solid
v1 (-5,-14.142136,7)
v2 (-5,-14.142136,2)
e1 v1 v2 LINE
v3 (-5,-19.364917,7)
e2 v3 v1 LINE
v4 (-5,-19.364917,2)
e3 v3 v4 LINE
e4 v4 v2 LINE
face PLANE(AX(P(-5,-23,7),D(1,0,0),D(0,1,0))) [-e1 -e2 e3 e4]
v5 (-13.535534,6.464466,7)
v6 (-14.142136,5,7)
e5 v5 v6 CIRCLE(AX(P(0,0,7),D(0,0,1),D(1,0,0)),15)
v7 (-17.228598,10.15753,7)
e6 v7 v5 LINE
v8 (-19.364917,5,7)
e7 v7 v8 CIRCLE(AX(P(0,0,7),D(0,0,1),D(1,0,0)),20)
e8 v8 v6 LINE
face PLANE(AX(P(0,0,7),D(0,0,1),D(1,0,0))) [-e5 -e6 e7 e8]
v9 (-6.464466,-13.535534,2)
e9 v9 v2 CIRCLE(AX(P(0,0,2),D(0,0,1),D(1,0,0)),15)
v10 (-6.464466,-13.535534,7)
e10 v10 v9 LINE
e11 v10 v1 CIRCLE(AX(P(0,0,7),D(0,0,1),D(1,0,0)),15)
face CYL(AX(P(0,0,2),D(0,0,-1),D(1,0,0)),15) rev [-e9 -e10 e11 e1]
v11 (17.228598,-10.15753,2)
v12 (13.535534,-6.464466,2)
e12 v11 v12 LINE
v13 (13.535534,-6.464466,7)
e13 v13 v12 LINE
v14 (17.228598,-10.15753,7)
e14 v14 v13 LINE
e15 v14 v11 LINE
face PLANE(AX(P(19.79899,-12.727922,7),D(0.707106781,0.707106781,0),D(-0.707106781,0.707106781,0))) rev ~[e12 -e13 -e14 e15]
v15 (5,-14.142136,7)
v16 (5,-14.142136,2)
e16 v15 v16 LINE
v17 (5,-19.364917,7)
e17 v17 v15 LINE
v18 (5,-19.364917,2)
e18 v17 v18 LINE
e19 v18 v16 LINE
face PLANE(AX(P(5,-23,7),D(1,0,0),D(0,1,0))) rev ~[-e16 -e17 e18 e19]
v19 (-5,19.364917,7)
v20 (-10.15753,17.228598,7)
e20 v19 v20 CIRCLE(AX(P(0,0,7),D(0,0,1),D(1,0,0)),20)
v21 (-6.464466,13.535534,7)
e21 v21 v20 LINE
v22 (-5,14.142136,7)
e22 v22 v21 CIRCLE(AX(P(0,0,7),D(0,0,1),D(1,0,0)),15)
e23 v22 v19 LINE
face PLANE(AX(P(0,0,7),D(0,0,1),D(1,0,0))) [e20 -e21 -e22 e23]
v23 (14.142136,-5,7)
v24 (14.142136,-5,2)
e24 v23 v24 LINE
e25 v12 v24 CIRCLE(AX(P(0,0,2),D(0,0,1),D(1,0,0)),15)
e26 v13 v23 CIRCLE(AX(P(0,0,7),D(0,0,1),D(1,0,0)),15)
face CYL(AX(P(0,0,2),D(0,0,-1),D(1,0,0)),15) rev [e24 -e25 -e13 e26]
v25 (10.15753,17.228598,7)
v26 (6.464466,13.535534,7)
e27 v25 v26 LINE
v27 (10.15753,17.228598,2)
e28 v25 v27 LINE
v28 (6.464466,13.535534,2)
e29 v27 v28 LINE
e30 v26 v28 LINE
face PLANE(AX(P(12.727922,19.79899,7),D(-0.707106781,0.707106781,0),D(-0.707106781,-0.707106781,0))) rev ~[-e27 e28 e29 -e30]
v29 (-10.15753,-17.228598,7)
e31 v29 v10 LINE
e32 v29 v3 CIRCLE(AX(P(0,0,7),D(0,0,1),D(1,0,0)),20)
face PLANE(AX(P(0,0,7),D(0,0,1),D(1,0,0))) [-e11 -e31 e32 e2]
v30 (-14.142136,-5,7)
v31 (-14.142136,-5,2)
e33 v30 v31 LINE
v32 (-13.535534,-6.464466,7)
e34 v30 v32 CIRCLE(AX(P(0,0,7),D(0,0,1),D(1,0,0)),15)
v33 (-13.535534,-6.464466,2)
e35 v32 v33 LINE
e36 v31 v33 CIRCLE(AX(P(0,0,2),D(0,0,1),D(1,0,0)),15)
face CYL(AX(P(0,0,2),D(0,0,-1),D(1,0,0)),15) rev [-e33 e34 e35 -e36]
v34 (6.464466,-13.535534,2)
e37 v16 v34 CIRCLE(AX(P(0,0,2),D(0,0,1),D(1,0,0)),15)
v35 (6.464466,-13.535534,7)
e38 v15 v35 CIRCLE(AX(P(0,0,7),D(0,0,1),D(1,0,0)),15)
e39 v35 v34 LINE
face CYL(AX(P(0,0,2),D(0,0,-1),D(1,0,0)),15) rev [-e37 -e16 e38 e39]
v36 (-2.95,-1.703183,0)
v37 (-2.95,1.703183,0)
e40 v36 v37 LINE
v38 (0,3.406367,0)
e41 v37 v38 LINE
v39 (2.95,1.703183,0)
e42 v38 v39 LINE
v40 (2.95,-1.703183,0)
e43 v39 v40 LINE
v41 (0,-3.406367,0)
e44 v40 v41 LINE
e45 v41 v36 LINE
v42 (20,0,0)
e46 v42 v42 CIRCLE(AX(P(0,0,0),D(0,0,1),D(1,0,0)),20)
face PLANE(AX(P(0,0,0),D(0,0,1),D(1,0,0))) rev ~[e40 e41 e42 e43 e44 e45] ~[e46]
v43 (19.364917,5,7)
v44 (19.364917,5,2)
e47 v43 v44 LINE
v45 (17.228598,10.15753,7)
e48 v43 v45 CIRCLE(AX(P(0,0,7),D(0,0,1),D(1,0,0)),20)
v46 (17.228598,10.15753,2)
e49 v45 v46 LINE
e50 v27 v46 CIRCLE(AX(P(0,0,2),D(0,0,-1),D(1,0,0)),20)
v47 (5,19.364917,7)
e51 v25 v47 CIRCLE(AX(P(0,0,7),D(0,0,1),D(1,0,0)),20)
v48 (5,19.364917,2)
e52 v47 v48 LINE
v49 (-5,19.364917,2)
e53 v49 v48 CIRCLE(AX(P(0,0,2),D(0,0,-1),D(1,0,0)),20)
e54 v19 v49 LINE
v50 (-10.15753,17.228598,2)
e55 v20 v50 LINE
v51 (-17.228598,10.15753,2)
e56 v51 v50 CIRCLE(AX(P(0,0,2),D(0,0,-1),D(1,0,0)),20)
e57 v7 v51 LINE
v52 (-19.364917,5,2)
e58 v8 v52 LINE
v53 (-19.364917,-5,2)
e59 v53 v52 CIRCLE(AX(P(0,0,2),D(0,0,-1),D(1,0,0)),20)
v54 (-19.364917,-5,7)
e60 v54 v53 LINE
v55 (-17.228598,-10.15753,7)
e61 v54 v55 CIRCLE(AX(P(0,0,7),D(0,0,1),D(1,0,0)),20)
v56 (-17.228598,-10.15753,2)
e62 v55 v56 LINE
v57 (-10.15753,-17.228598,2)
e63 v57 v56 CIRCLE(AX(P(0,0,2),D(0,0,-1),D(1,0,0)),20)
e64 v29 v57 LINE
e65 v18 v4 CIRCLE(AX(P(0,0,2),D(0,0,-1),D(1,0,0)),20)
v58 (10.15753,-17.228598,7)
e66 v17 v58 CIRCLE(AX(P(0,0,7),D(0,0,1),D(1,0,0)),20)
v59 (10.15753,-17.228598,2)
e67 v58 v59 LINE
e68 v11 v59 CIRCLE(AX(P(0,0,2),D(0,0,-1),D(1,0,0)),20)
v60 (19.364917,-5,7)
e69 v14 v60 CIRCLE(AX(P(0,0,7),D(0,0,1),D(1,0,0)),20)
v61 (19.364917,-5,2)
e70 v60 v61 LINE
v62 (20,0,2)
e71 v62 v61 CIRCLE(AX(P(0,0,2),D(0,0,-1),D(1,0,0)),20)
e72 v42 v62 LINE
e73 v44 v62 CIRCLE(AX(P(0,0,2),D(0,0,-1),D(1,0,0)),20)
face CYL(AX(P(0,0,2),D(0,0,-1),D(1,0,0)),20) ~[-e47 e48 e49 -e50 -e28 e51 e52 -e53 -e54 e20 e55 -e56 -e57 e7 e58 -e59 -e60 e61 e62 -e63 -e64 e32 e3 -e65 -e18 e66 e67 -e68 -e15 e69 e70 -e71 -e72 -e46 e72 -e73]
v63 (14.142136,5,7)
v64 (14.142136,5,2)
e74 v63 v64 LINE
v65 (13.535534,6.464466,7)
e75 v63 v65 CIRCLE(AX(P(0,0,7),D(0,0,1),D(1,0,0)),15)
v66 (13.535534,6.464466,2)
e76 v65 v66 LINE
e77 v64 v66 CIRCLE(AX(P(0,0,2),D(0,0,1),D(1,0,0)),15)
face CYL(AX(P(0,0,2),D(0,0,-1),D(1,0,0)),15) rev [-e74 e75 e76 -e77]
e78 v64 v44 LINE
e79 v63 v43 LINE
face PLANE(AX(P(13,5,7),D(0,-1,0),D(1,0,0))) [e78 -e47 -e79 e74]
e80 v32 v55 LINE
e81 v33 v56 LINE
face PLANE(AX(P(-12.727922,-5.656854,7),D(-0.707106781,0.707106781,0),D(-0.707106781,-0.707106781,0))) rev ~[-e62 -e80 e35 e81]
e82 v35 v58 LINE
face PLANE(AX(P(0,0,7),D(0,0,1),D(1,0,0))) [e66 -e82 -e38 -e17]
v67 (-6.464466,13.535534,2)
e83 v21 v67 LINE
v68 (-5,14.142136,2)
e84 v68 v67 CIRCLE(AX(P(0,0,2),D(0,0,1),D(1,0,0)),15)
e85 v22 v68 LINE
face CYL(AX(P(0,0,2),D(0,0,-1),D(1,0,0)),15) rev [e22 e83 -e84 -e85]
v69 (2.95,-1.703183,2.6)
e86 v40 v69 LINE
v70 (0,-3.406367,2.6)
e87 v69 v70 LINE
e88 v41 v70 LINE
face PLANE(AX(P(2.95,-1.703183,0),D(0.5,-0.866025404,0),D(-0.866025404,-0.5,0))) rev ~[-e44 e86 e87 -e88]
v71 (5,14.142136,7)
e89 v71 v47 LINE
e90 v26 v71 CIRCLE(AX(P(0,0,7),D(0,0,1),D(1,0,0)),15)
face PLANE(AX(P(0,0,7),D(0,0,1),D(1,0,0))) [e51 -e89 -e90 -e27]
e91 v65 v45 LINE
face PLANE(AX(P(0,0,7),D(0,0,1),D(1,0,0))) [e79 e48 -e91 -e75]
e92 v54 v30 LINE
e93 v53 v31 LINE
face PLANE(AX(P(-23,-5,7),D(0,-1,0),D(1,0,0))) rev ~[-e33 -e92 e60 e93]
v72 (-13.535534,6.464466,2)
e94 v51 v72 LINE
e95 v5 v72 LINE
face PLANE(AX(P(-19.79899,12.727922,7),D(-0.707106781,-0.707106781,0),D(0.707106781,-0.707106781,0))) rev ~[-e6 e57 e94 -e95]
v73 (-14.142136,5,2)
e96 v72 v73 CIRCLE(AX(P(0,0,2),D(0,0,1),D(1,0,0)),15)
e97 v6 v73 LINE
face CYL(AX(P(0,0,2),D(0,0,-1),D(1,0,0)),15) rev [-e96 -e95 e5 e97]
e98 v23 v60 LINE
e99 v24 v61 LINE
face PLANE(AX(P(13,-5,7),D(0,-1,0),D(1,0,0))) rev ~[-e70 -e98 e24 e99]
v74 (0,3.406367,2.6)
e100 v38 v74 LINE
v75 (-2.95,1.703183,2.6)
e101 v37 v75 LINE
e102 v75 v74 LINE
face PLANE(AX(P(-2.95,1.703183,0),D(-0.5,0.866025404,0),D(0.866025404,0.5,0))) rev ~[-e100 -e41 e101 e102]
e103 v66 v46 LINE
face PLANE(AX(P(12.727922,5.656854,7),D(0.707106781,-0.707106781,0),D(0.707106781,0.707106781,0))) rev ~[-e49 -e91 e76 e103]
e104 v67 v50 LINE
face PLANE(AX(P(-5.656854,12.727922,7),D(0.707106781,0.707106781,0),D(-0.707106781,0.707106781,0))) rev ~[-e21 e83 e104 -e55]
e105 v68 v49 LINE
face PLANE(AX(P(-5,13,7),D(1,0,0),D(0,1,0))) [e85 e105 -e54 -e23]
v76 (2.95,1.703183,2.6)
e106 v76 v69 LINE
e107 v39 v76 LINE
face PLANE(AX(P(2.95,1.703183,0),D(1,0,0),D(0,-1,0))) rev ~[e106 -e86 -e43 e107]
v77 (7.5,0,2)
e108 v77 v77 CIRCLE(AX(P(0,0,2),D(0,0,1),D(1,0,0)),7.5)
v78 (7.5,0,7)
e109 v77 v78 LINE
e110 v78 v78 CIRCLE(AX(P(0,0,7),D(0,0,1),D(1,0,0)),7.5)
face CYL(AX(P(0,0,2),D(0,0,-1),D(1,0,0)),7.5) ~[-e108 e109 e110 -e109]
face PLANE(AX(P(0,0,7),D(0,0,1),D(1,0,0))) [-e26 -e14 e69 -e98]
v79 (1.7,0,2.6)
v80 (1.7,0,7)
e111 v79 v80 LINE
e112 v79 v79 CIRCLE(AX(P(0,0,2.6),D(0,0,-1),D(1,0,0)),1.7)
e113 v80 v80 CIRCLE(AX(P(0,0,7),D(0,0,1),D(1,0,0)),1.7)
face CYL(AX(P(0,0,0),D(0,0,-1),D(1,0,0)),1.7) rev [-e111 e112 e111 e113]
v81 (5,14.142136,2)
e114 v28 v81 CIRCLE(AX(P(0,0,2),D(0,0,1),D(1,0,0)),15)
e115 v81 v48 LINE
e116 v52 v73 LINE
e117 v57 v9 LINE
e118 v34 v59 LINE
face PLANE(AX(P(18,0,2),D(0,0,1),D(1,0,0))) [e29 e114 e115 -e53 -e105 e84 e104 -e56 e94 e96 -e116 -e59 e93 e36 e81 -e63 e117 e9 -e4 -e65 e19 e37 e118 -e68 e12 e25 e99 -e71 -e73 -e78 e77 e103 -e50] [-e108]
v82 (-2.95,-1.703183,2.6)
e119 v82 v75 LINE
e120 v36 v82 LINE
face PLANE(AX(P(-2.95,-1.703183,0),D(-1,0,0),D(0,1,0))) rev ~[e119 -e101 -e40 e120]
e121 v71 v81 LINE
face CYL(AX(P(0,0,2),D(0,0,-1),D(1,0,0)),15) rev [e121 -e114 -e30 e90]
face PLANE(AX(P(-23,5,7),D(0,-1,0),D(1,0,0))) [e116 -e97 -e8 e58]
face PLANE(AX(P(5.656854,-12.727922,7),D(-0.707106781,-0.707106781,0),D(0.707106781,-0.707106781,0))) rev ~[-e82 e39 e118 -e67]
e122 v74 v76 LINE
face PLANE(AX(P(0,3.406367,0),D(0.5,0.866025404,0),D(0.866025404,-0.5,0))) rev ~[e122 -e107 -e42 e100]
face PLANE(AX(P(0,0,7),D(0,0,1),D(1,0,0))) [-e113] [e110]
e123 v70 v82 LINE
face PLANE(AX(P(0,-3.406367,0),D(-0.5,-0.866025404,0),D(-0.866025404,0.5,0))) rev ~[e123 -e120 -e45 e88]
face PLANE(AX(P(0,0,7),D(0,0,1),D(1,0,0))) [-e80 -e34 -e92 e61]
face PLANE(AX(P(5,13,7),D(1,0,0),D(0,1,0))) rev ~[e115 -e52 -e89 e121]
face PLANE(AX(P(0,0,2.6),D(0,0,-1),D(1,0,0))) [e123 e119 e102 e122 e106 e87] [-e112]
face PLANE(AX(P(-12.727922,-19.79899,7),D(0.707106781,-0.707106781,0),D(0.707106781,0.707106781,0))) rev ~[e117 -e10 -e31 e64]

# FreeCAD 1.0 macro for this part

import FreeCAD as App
import Part
import Sketcher
from FreeCAD import Vector
Q = App.Units.Quantity

doc = App.newDocument("Part")
body = doc.addObject("PartDesign::Body", "Body")

sketch1 = body.newObject("Sketcher::SketchObject", "Sketch")
sketch1.AttachmentSupport = (doc.getObject("XY_Plane"), [""])
sketch1.MapMode = "FlatFace"
sketch1.addGeometry([
    Part.Circle(Vector(0, 0, 0), Vector(0, 0, 1), 20),
    Part.Circle(Vector(0, 0, 0), Vector(0, 0, 1), 1.7),
], False)
sketch1.addConstraint([
    Sketcher.Constraint("Coincident", 0, 3, -1, 1),
    Sketcher.Constraint("Coincident", 1, 3, -1, 1),
    Sketcher.Constraint("Diameter", 0, Q("40 mm")),
    Sketcher.Constraint("Diameter", 1, Q("3.4 mm")),
])
pad1 = body.newObject("PartDesign::Pad", "Pad")
pad1.Profile = sketch1
pad1.Length = 2

sketch2 = body.newObject("Sketcher::SketchObject", "Sketch001")
sketch2.AttachmentSupport = (doc.getObject("XY_Plane"), [""])
sketch2.MapMode = "FlatFace"
sketch2.AttachmentOffset = App.Placement(Vector(0, 0, 2), App.Rotation())
sketch2.addGeometry([
    Part.Circle(Vector(0, 0, 0), Vector(0, 0, 1), 20),
    Part.Circle(Vector(0, 0, 0), Vector(0, 0, 1), 15),
    Part.Circle(Vector(0, 0, 0), Vector(0, 0, 1), 7.5),
    Part.Circle(Vector(0, 0, 0), Vector(0, 0, 1), 1.7),
], False)
sketch2.addConstraint([
    Sketcher.Constraint("Coincident", 0, 3, -1, 1),
    Sketcher.Constraint("Coincident", 1, 3, -1, 1),
    Sketcher.Constraint("Coincident", 2, 3, -1, 1),
    Sketcher.Constraint("Coincident", 3, 3, -1, 1),
    Sketcher.Constraint("Diameter", 0, Q("40 mm")),
    Sketcher.Constraint("Diameter", 1, Q("30 mm")),
    Sketcher.Constraint("Diameter", 2, Q("15 mm")),
    Sketcher.Constraint("Diameter", 3, Q("3.4 mm")),
])
pad2 = body.newObject("PartDesign::Pad", "Pad001")
pad2.Profile = sketch2
pad2.Length = 5

sketch3 = body.newObject("Sketcher::SketchObject", "Sketch002")
sketch3.AttachmentSupport = (doc.getObject("XY_Plane"), [""])
sketch3.MapMode = "FlatFace"
sketch3.AttachmentOffset = App.Placement(Vector(0, 0, 7), App.Rotation())
sketch3.addGeometry([
    Part.LineSegment(Vector(-23, 5, 0), Vector(-23, -5, 0)),
    Part.LineSegment(Vector(-23, -5, 0), Vector(-13, -5, 0)),
    Part.LineSegment(Vector(-13, -5, 0), Vector(-13, 5, 0)),
    Part.LineSegment(Vector(-13, 5, 0), Vector(-23, 5, 0)),
    Part.LineSegment(Vector(-13, -6, 0), Vector(-20, -13, 0)),
    Part.LineSegment(Vector(-20, -13, 0), Vector(-13, -20, 0)),
    Part.LineSegment(Vector(-13, -20, 0), Vector(-6, -13, 0)),
    Part.LineSegment(Vector(-6, -13, 0), Vector(-13, -6, 0)),
    Part.LineSegment(Vector(-5, -13, 0), Vector(-5, -23, 0)),
    Part.LineSegment(Vector(-5, -23, 0), Vector(5, -23, 0)),
    Part.LineSegment(Vector(5, -23, 0), Vector(5, -13, 0)),
    Part.LineSegment(Vector(5, -13, 0), Vector(-5, -13, 0)),
    Part.LineSegment(Vector(6, -13, 0), Vector(13, -20, 0)),
    Part.LineSegment(Vector(13, -20, 0), Vector(20, -13, 0)),
    Part.LineSegment(Vector(20, -13, 0), Vector(13, -6, 0)),
    Part.LineSegment(Vector(13, -6, 0), Vector(6, -13, 0)),
    Part.LineSegment(Vector(13, 5, 0), Vector(13, -5, 0)),
    Part.LineSegment(Vector(13, -5, 0), Vector(23, -5, 0)),
    Part.LineSegment(Vector(23, -5, 0), Vector(23, 5, 0)),
    Part.LineSegment(Vector(23, 5, 0), Vector(13, 5, 0)),
    Part.LineSegment(Vector(13, 6, 0), Vector(20, 13, 0)),
    Part.LineSegment(Vector(20, 13, 0), Vector(13, 20, 0)),
    Part.LineSegment(Vector(13, 20, 0), Vector(6, 13, 0)),
    Part.LineSegment(Vector(6, 13, 0), Vector(13, 6, 0)),
    Part.LineSegment(Vector(-5, 23, 0), Vector(-5, 13, 0)),
    Part.LineSegment(Vector(-5, 13, 0), Vector(5, 13, 0)),
    Part.LineSegment(Vector(5, 13, 0), Vector(5, 23, 0)),
    Part.LineSegment(Vector(5, 23, 0), Vector(-5, 23, 0)),
    Part.LineSegment(Vector(-6, 13, 0), Vector(-13, 20, 0)),
    Part.LineSegment(Vector(-13, 20, 0), Vector(-20, 13, 0)),
    Part.LineSegment(Vector(-20, 13, 0), Vector(-13, 6, 0)),
    Part.LineSegment(Vector(-13, 6, 0), Vector(-6, 13, 0)),
], False)
sketch3.addConstraint([
    Sketcher.Constraint("Coincident", 0, 2, 1, 1),
    Sketcher.Constraint("Coincident", 1, 2, 2, 1),
    Sketcher.Constraint("Coincident", 2, 2, 3, 1),
    Sketcher.Constraint("Coincident", 3, 2, 0, 1),
    Sketcher.Constraint("Coincident", 4, 2, 5, 1),
    Sketcher.Constraint("Coincident", 5, 2, 6, 1),
    Sketcher.Constraint("Coincident", 6, 2, 7, 1),
    Sketcher.Constraint("Coincident", 7, 2, 4, 1),
    Sketcher.Constraint("Coincident", 8, 2, 9, 1),
    Sketcher.Constraint("Coincident", 9, 2, 10, 1),
    Sketcher.Constraint("Coincident", 10, 2, 11, 1),
    Sketcher.Constraint("Coincident", 11, 2, 8, 1),
    Sketcher.Constraint("Coincident", 12, 2, 13, 1),
    Sketcher.Constraint("Coincident", 13, 2, 14, 1),
    Sketcher.Constraint("Coincident", 14, 2, 15, 1),
    Sketcher.Constraint("Coincident", 15, 2, 12, 1),
    Sketcher.Constraint("Coincident", 16, 2, 17, 1),
    Sketcher.Constraint("Coincident", 17, 2, 18, 1),
    Sketcher.Constraint("Coincident", 18, 2, 19, 1),
    Sketcher.Constraint("Coincident", 19, 2, 16, 1),
    Sketcher.Constraint("Coincident", 20, 2, 21, 1),
    Sketcher.Constraint("Coincident", 21, 2, 22, 1),
    Sketcher.Constraint("Coincident", 22, 2, 23, 1),
    Sketcher.Constraint("Coincident", 23, 2, 20, 1),
    Sketcher.Constraint("Coincident", 24, 2, 25, 1),
    Sketcher.Constraint("Coincident", 25, 2, 26, 1),
    Sketcher.Constraint("Coincident", 26, 2, 27, 1),
    Sketcher.Constraint("Coincident", 27, 2, 24, 1),
    Sketcher.Constraint("Coincident", 28, 2, 29, 1),
    Sketcher.Constraint("Coincident", 29, 2, 30, 1),
    Sketcher.Constraint("Coincident", 30, 2, 31, 1),
    Sketcher.Constraint("Coincident", 31, 2, 28, 1),
    Sketcher.Constraint("Vertical", 0),
    Sketcher.Constraint("Horizontal", 1),
    Sketcher.Constraint("Vertical", 2),
    Sketcher.Constraint("Horizontal", 3),
    Sketcher.Constraint("Vertical", 8),
    Sketcher.Constraint("Horizontal", 9),
    Sketcher.Constraint("Vertical", 10),
    Sketcher.Constraint("Horizontal", 11),
    Sketcher.Constraint("Vertical", 16),
    Sketcher.Constraint("Horizontal", 17),
    Sketcher.Constraint("Vertical", 18),
    Sketcher.Constraint("Horizontal", 19),
    Sketcher.Constraint("Vertical", 24),
    Sketcher.Constraint("Horizontal", 25),
    Sketcher.Constraint("Vertical", 26),
    Sketcher.Constraint("Horizontal", 27),
    Sketcher.Constraint("Symmetric", 2, 2, 16, 2, -1, 1),
    Sketcher.Constraint("Symmetric", 0, 2, 18, 2, -1, 1),
    Sketcher.Constraint("Symmetric", 4, 2, 20, 2, -1, 1),
    Sketcher.Constraint("Symmetric", 5, 2, 21, 2, -1, 1),
    Sketcher.Constraint("Symmetric", 6, 2, 22, 2, -1, 1),
    Sketcher.Constraint("Symmetric", 7, 2, 23, 2, -1, 1),
    Sketcher.Constraint("Symmetric", 10, 2, 24, 2, -1, 1),
    Sketcher.Constraint("Symmetric", 8, 2, 26, 2, -1, 1),
    Sketcher.Constraint("Symmetric", 12, 2, 28, 2, -1, 1),
    Sketcher.Constraint("Symmetric", 13, 2, 29, 2, -1, 1),
    Sketcher.Constraint("Symmetric", 14, 2, 30, 2, -1, 1),
    Sketcher.Constraint("Symmetric", 15, 2, 31, 2, -1, 1),
    Sketcher.Constraint("Symmetric", 5, 2, 12, 2, -2),
    Sketcher.Constraint("Symmetric", 4, 2, 13, 2, -2),
    Sketcher.Constraint("Symmetric", 7, 2, 14, 2, -2),
    Sketcher.Constraint("Symmetric", 6, 2, 15, 2, -2),
    Sketcher.Constraint("Perpendicular", 4, 5),
    Sketcher.Constraint("Perpendicular", 5, 6),
    Sketcher.Constraint("Perpendicular", 6, 7),
    Sketcher.Constraint("Parallel", 7, 12),
    Sketcher.Constraint("Horizontal", 4, 2, 6, 2),
    Sketcher.Constraint("Horizontal", 1, 2, 16, 2),
    Sketcher.Constraint("Vertical", 11, 2, 24, 2),
    Sketcher.Constraint("Equal", 3, 9),
    Sketcher.Constraint("Equal", 27, 0),
    Sketcher.Constraint("Equal", 2, 8),
    Sketcher.Constraint("DistanceX", 1, 1, 1, 2, Q("10 mm")),
    Sketcher.Constraint("Distance", 4, Q("10 mm")),
    Sketcher.Constraint("DistanceX", 0, 2, -1, 1, Q("23 mm")),
    Sketcher.Constraint("DistanceY", 8, 2, -1, 1, Q("23 mm")),
    Sketcher.Constraint("DistanceX", 4, 2, -1, 1, Q("19.79899 mm")),
    Sketcher.Constraint("DistanceY", 5, 2, -1, 1, Q("19.79899 mm")),
])
pocket1 = body.newObject("PartDesign::Pocket", "Pocket")
pocket1.Profile = sketch3
pocket1.Length = 5

sketch4 = body.newObject("Sketcher::SketchObject", "Sketch003")
sketch4.AttachmentSupport = (doc.getObject("XY_Plane"), [""])
sketch4.MapMode = "FlatFace"
sketch4.addGeometry([
    Part.LineSegment(Vector(3, 1.7, 0), Vector(3, -1.7, 0)),
    Part.LineSegment(Vector(3, -1.7, 0), Vector(0, -3.4, 0)),
    Part.LineSegment(Vector(0, -3.4, 0), Vector(-3, -1.7, 0)),
    Part.LineSegment(Vector(-3, -1.7, 0), Vector(-3, 1.7, 0)),
    Part.LineSegment(Vector(-3, 1.7, 0), Vector(0, 3.4, 0)),
    Part.LineSegment(Vector(0, 3.4, 0), Vector(3, 1.7, 0)),
    Part.Circle(Vector(0, 0, 0), Vector(0, 0, 1), 1.7),
], False)
sketch4.addConstraint([
    Sketcher.Constraint("Coincident", 0, 2, 1, 1),
    Sketcher.Constraint("Coincident", 1, 2, 2, 1),
    Sketcher.Constraint("Coincident", 2, 2, 3, 1),
    Sketcher.Constraint("Coincident", 3, 2, 4, 1),
    Sketcher.Constraint("Coincident", 4, 2, 5, 1),
    Sketcher.Constraint("Coincident", 5, 2, 0, 1),
    Sketcher.Constraint("Vertical", 0),
    Sketcher.Constraint("Vertical", 3),
    Sketcher.Constraint("Coincident", 6, 3, -1, 1),
    Sketcher.Constraint("Symmetric", 0, 2, 3, 2, -1, 1),
    Sketcher.Constraint("Symmetric", 1, 2, 4, 2, -1, 1),
    Sketcher.Constraint("PointOnObject", 1, 2, -2),
    Sketcher.Constraint("Parallel", 2, 5),
    Sketcher.Constraint("Horizontal", 0, 2, 2, 2),
    Sketcher.Constraint("Diameter", 6, Q("3.4 mm")),
    Sketcher.Constraint("Angle", 1, Q("-150 deg")),
    Sketcher.Constraint("DistanceX", 2, 2, 0, 2, Q("5.9 mm")),
    Sketcher.Constraint("DistanceY", 0, 2, 0, 1, Q("3.406367 mm")),
])
pocket2 = body.newObject("PartDesign::Pocket", "Pocket001")
pocket2.Profile = sketch4
pocket2.Length = 2.6
pocket2.Reversed = True

doc.recompute()
